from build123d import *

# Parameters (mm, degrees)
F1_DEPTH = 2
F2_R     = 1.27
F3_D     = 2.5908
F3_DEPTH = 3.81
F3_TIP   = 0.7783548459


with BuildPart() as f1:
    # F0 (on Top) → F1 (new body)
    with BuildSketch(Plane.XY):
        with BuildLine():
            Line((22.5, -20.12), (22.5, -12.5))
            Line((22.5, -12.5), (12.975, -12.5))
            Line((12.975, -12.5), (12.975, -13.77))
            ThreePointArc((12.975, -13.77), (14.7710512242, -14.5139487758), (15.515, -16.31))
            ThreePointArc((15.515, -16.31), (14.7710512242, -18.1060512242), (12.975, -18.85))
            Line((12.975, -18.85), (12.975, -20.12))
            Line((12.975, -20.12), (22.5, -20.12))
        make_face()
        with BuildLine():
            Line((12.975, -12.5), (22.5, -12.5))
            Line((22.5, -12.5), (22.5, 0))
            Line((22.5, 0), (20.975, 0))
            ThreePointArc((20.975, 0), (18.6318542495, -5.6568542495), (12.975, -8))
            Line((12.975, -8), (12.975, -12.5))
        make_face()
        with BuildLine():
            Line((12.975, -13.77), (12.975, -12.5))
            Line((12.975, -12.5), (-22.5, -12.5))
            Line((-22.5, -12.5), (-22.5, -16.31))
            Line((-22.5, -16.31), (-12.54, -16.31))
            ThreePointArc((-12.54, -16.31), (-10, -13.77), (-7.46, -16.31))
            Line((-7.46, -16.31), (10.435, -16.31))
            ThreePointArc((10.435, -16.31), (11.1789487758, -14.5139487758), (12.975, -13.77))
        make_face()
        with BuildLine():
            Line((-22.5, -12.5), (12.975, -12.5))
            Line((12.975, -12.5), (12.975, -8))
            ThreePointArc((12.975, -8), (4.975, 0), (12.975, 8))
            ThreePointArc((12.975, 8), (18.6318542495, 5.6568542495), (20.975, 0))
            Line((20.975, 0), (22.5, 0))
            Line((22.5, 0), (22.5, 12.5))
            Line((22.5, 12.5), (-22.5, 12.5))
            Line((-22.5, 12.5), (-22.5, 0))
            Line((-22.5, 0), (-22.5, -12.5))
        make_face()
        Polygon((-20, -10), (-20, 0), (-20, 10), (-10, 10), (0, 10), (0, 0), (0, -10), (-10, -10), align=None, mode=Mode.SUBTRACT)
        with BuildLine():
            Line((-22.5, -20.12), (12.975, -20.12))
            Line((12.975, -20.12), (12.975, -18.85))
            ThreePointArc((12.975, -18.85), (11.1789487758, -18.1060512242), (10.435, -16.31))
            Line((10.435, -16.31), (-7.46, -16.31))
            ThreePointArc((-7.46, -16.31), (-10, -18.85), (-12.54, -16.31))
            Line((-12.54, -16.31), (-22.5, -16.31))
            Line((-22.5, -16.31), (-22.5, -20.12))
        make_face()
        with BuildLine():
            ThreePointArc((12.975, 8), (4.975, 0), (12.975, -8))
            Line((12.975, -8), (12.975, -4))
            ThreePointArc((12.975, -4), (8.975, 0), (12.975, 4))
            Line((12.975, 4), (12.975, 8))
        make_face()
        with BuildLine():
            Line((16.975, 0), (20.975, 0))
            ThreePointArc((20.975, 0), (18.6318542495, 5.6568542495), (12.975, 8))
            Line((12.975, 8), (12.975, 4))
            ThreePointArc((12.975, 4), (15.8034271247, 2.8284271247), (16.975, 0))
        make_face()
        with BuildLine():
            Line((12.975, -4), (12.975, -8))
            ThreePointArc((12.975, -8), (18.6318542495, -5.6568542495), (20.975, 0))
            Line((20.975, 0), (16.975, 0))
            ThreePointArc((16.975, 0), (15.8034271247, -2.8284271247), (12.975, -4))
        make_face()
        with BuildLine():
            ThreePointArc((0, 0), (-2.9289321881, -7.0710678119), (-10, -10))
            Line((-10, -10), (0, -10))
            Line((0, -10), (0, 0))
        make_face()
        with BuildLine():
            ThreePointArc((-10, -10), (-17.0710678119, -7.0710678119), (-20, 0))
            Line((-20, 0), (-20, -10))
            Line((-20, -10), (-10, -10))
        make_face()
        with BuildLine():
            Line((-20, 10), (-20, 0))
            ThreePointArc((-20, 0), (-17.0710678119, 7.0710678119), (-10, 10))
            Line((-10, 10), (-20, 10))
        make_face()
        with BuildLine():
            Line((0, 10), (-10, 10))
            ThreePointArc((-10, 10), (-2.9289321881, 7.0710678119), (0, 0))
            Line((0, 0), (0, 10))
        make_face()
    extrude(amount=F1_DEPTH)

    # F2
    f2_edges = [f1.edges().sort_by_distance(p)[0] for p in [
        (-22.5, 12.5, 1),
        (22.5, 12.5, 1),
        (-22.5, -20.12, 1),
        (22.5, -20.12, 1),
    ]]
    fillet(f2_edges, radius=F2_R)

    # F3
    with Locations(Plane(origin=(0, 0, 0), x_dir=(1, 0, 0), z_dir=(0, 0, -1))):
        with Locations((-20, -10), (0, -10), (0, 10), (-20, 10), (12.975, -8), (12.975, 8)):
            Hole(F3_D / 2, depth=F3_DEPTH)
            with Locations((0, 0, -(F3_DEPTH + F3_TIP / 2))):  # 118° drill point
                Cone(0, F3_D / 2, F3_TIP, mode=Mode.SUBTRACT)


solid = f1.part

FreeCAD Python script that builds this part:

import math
import FreeCAD as App
import Part
import Sketcher


def edges_at(feature, points):
    """Names of the edges that pass closest to the given points."""
    edges = feature.Shape.Edges
    near = lambda p: min(range(len(edges)), key=lambda i: edges[i].distToShape(Part.Vertex(*p))[0])
    return sorted({f"Edge{near(p) + 1}" for p in points})


def add_polygon(sketch, points):
    """Adds a closed chain of lines whose ends are joined by coincident constraints."""
    first, n = sketch.GeometryCount, len(points)
    for a, b in zip(points, points[1:] + points[:1]):
        sketch.addGeometry(Part.LineSegment(App.Vector(*a, 0), App.Vector(*b, 0)), False)
    for i in range(n):
        sketch.addConstraint(Sketcher.Constraint("Coincident", first + i, 2, first + (i + 1) % n, 1))

doc = App.newDocument("Part")
body = doc.addObject("PartDesign::Body", "Body")

# Sketch on XY plane
sketch1 = body.newObject("Sketcher::SketchObject", "Sketch")
sketch1.AttachmentSupport = (doc.getObject("XY_Plane"), [""])
sketch1.MapMode = "FlatFace"
add_polygon(sketch1, [(22.5, -20.12), (22.5, 12.5), (-22.5, 12.5), (-22.5, -20.12)])  # lines 0-3
sketch1.addGeometry(Part.Circle(App.Vector(-10, -16.31, 0), App.Vector(0, 0, 1), 2.54), False)  # 4
sketch1.addGeometry(Part.ArcOfCircle(Part.Circle(App.Vector(12.975, -16.31, 0), App.Vector(0, 0, 1), 2.54), math.radians(90), math.radians(180)), False)  # 5
sketch1.addGeometry(Part.ArcOfCircle(Part.Circle(App.Vector(12.975, -16.31, 0), App.Vector(0, 0, 1), 2.54), math.radians(0), math.radians(90)), False)  # 6
sketch1.addGeometry(Part.ArcOfCircle(Part.Circle(App.Vector(12.975, -16.31, 0), App.Vector(0, 0, 1), 2.54), math.radians(-90), math.radians(0)), False)  # 7
sketch1.addGeometry(Part.ArcOfCircle(Part.Circle(App.Vector(12.975, -16.31, 0), App.Vector(0, 0, 1), 2.54), math.radians(180), math.radians(270)), False)  # 8
sketch1.addGeometry(Part.ArcOfCircle(Part.Circle(App.Vector(-10, 0, 0), App.Vector(0, 0, 1), 10), math.radians(-90), math.radians(0)), False)  # 9
sketch1.addGeometry(Part.ArcOfCircle(Part.Circle(App.Vector(-10, 0, 0), App.Vector(0, 0, 1), 10), math.radians(180), math.radians(270)), False)  # 10
sketch1.addGeometry(Part.ArcOfCircle(Part.Circle(App.Vector(-10, 0, 0), App.Vector(0, 0, 1), 10), math.radians(90), math.radians(180)), False)  # 11
sketch1.addGeometry(Part.ArcOfCircle(Part.Circle(App.Vector(-10, 0, 0), App.Vector(0, 0, 1), 10), math.radians(0), math.radians(90)), False)  # 12
sketch1.addGeometry(Part.ArcOfCircle(Part.Circle(App.Vector(12.975, 0, 0), App.Vector(0, 0, 1), 4), math.radians(90), math.radians(270)), False)  # 13
sketch1.addGeometry(Part.ArcOfCircle(Part.Circle(App.Vector(12.975, 0, 0), App.Vector(0, 0, 1), 4), math.radians(0), math.radians(90)), False)  # 14
sketch1.addGeometry(Part.ArcOfCircle(Part.Circle(App.Vector(12.975, 0, 0), App.Vector(0, 0, 1), 4), math.radians(-90), math.radians(0)), False)  # 15
sketch1.addConstraint([
    Sketcher.Constraint("Tangent", 5, 1, 6, 2),
    Sketcher.Constraint("Tangent", 6, 1, 7, 2),
    Sketcher.Constraint("Tangent", 7, 1, 8, 2),
    Sketcher.Constraint("Tangent", 8, 1, 5, 2),
    Sketcher.Constraint("Tangent", 9, 1, 10, 2),
    Sketcher.Constraint("Tangent", 10, 1, 11, 2),
    Sketcher.Constraint("Tangent", 11, 1, 12, 2),
    Sketcher.Constraint("Tangent", 12, 1, 9, 2),
    Sketcher.Constraint("Tangent", 13, 1, 14, 2),
    Sketcher.Constraint("Tangent", 14, 1, 15, 2),
    Sketcher.Constraint("Tangent", 15, 1, 13, 2),
    Sketcher.Constraint("Vertical", 0),
    Sketcher.Constraint("Horizontal", 1),
    Sketcher.Constraint("Vertical", 2),
    Sketcher.Constraint("Horizontal", 3),
    Sketcher.Constraint("Coincident", 12, 1, -1, 1),
    Sketcher.Constraint("Equal", 4, 5),
    Sketcher.Constraint("Equal", 5, 6),
    Sketcher.Constraint("Equal", 9, 10),
    Sketcher.Constraint("Symmetric", 9, 1, 11, 1, -1),
    Sketcher.Constraint("Symmetric", 13, 1, 15, 1, -1),
    Sketcher.Constraint("PointOnObject", 10, 1, -1),
    Sketcher.Constraint("PointOnObject", 14, 1, -1),
    Sketcher.Constraint("Horizontal", 4, 3, 5, 3),
    Sketcher.Constraint("Horizontal", 8, 3, 6, 1),
    Sketcher.Constraint("Horizontal", 6, 1, 8, 1),
    Sketcher.Constraint("Vertical", 4, 3, 9, 3),
    Sketcher.Constraint("Vertical", 8, 3, 13, 3),
    Sketcher.Constraint("Vertical", 15, 3, 5, 1),
    Sketcher.Constraint("Vertical", 5, 1, 7, 1),
    Sketcher.Constraint("Vertical", 12, 3, 9, 1),
    Sketcher.Constraint("Vertical", 7, 1, 13, 1),
    Sketcher.Constraint("Radius", 9, 10.0),
    Sketcher.Constraint("Radius", 13, 4.0),
    Sketcher.Constraint("Diameter", 4, 5.08),
    Sketcher.Constraint("DistanceX", 1, 2, 1, 1, 45.0),
    Sketcher.Constraint("DistanceY", 0, 1, 0, 2, 32.62),
    Sketcher.Constraint("DistanceX", -1, 1, 0, 2, 22.5),
    Sketcher.Constraint("DistanceY", -1, 1, 0, 2, 12.5),
    Sketcher.Constraint("DistanceY", 4, 3, -1, 1, 16.31),
    Sketcher.Constraint("DistanceX", -1, 1, 5, 3, 12.975),
])
pad1 = body.newObject("PartDesign::Pad", "Pad")
pad1.Profile = sketch1
pad1.Length = 2
doc.recompute()

fillet = body.newObject("PartDesign::Fillet", "Fillet")
fillet.Base = (pad1, edges_at(pad1, [
    (-22.5, 12.5, 1),
    (22.5, 12.5, 1),
    (-22.5, -20.12, 1),
    (22.5, -20.12, 1),
]))
fillet.Radius = 1.27

# Sketch on XY plane
sketch2 = body.newObject("Sketcher::SketchObject", "Sketch001")
sketch2.AttachmentSupport = (doc.getObject("XY_Plane"), [""])
sketch2.MapMode = "FlatFace"
sketch2.addGeometry([
    Part.Circle(App.Vector(-20, 10, 0), App.Vector(0, 0, 1), 1.2954),  # 0
    Part.Circle(App.Vector(0, 10, 0), App.Vector(0, 0, 1), 1.2954),  # 1
    Part.Circle(App.Vector(0, -10, 0), App.Vector(0, 0, 1), 1.2954),  # 2
    Part.Circle(App.Vector(-20, -10, 0), App.Vector(0, 0, 1), 1.2954),  # 3
    Part.Circle(App.Vector(12.975, 8, 0), App.Vector(0, 0, 1), 1.2954),  # 4
    Part.Circle(App.Vector(12.975, -8, 0), App.Vector(0, 0, 1), 1.2954),  # 5
], False)
sketch2.addConstraint([
    Sketcher.Constraint("Equal", 0, 1),
    Sketcher.Constraint("Equal", 1, 2),
    Sketcher.Constraint("Equal", 2, 3),
    Sketcher.Constraint("Equal", 3, 4),
    Sketcher.Constraint("Equal", 4, 5),
    Sketcher.Constraint("Symmetric", 1, 3, 2, 3, -1, 1),
    Sketcher.Constraint("Symmetric", 0, 3, 3, 3, -1),
    Sketcher.Constraint("Symmetric", 4, 3, 5, 3, -1),
    Sketcher.Constraint("PointOnObject", 1, 3, -2),
    Sketcher.Constraint("Horizontal", 0, 3, 1, 3),
    Sketcher.Constraint("DistanceX", 0, 3, -1, 1, 20.0),
    Sketcher.Constraint("DistanceY", -1, 1, 0, 3, 10.0),
    Sketcher.Constraint("DistanceY", -1, 1, 4, 3, 8.0),
    Sketcher.Constraint("Diameter", 0, 2.5908),
    Sketcher.Constraint("DistanceX", -1, 1, 4, 3, 12.975),
])
doc.recompute()
hole = body.newObject("PartDesign::Hole", "Hole")
hole.Profile = sketch2
hole.ThreadType = "None"
hole.Diameter = 2.5908
hole.DepthType = "Dimension"
hole.Depth = 3.81
hole.DrillPoint = "Angled"
hole.DrillPointAngle = 118
hole.Reversed = True

doc.recompute()
